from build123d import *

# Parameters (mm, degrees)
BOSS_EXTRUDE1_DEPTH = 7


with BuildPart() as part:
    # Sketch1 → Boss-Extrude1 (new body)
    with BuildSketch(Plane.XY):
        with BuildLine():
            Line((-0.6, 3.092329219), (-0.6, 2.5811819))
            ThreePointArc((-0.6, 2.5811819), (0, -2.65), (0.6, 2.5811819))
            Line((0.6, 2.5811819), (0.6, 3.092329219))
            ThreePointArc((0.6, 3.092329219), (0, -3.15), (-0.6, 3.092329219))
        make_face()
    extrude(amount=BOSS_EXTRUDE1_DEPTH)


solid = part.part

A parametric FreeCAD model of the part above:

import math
import FreeCAD as App
import Part
import Sketcher

doc = App.newDocument("Part")
params = doc.addObject("Spreadsheet::Sheet", "Params")
for row, (alias, value) in enumerate([
    ("sketch1_radius", "3.15 mm"),
    ("sketch1_radius2", "2.65 mm"),
    ("pad1_length", "7 mm"),
], start=1):
    params.set(f"A{row}", alias)
    params.set(f"B{row}", "=" + value)
    params.setAlias(f"B{row}", alias)

body = doc.addObject("PartDesign::Body", "Body")

sketch1 = doc.addObject("Sketcher::SketchObject", "Sketch")
body.addObject(sketch1)
sketch1.AttachmentSupport = (doc.XY_Plane, [""])
sketch1.MapMode = "FlatFace"
sketch1.addGeometry([
    Part.LineSegment(App.Vector(-0.6, 2.6, 0), App.Vector(-0.6, 3.1, 0)),
    Part.ArcOfCircle(Part.Circle(App.Vector(0, 0, 0), App.Vector(0, 0, 1), 3.1), math.radians(101), math.radians(439)),
    Part.LineSegment(App.Vector(0.6, 3.1, 0), App.Vector(0.6, 2.6, 0)),
    Part.ArcOfCircle(Part.Circle(App.Vector(0, 0, 0), App.Vector(0, 0, 1), 2.6), math.radians(103), math.radians(437)),
], False)
sketch1.addConstraint([
    Sketcher.Constraint("Coincident", 0, 2, 1, 1),
    Sketcher.Constraint("Coincident", 1, 2, 2, 1),
    Sketcher.Constraint("Coincident", 2, 2, 3, 2),
    Sketcher.Constraint("Coincident", 3, 1, 0, 1),
    Sketcher.Constraint("Vertical", 0),
    Sketcher.Constraint("Vertical", 2),
    Sketcher.Constraint("Coincident", 1, 3, -1, 1),
    Sketcher.Constraint("Coincident", 3, 3, -1, 1),
    Sketcher.Constraint("Horizontal", 0, 2, 1, 2),
    Sketcher.Constraint("Radius", 1, 3.15),
    Sketcher.Constraint("Radius", 3, 2.65),
    Sketcher.Constraint("DistanceX", 0, 2, -1, 1, 0.6),
])
sketch1.setExpression("Constraints[9]", "Params.sketch1_radius")
sketch1.setExpression("Constraints[10]", "Params.sketch1_radius2")
pad1 = doc.addObject("PartDesign::Pad", "Pad")
body.addObject(pad1)
pad1.Profile = sketch1
pad1.setExpression("Length", "Params.pad1_length")

doc.recompute()
